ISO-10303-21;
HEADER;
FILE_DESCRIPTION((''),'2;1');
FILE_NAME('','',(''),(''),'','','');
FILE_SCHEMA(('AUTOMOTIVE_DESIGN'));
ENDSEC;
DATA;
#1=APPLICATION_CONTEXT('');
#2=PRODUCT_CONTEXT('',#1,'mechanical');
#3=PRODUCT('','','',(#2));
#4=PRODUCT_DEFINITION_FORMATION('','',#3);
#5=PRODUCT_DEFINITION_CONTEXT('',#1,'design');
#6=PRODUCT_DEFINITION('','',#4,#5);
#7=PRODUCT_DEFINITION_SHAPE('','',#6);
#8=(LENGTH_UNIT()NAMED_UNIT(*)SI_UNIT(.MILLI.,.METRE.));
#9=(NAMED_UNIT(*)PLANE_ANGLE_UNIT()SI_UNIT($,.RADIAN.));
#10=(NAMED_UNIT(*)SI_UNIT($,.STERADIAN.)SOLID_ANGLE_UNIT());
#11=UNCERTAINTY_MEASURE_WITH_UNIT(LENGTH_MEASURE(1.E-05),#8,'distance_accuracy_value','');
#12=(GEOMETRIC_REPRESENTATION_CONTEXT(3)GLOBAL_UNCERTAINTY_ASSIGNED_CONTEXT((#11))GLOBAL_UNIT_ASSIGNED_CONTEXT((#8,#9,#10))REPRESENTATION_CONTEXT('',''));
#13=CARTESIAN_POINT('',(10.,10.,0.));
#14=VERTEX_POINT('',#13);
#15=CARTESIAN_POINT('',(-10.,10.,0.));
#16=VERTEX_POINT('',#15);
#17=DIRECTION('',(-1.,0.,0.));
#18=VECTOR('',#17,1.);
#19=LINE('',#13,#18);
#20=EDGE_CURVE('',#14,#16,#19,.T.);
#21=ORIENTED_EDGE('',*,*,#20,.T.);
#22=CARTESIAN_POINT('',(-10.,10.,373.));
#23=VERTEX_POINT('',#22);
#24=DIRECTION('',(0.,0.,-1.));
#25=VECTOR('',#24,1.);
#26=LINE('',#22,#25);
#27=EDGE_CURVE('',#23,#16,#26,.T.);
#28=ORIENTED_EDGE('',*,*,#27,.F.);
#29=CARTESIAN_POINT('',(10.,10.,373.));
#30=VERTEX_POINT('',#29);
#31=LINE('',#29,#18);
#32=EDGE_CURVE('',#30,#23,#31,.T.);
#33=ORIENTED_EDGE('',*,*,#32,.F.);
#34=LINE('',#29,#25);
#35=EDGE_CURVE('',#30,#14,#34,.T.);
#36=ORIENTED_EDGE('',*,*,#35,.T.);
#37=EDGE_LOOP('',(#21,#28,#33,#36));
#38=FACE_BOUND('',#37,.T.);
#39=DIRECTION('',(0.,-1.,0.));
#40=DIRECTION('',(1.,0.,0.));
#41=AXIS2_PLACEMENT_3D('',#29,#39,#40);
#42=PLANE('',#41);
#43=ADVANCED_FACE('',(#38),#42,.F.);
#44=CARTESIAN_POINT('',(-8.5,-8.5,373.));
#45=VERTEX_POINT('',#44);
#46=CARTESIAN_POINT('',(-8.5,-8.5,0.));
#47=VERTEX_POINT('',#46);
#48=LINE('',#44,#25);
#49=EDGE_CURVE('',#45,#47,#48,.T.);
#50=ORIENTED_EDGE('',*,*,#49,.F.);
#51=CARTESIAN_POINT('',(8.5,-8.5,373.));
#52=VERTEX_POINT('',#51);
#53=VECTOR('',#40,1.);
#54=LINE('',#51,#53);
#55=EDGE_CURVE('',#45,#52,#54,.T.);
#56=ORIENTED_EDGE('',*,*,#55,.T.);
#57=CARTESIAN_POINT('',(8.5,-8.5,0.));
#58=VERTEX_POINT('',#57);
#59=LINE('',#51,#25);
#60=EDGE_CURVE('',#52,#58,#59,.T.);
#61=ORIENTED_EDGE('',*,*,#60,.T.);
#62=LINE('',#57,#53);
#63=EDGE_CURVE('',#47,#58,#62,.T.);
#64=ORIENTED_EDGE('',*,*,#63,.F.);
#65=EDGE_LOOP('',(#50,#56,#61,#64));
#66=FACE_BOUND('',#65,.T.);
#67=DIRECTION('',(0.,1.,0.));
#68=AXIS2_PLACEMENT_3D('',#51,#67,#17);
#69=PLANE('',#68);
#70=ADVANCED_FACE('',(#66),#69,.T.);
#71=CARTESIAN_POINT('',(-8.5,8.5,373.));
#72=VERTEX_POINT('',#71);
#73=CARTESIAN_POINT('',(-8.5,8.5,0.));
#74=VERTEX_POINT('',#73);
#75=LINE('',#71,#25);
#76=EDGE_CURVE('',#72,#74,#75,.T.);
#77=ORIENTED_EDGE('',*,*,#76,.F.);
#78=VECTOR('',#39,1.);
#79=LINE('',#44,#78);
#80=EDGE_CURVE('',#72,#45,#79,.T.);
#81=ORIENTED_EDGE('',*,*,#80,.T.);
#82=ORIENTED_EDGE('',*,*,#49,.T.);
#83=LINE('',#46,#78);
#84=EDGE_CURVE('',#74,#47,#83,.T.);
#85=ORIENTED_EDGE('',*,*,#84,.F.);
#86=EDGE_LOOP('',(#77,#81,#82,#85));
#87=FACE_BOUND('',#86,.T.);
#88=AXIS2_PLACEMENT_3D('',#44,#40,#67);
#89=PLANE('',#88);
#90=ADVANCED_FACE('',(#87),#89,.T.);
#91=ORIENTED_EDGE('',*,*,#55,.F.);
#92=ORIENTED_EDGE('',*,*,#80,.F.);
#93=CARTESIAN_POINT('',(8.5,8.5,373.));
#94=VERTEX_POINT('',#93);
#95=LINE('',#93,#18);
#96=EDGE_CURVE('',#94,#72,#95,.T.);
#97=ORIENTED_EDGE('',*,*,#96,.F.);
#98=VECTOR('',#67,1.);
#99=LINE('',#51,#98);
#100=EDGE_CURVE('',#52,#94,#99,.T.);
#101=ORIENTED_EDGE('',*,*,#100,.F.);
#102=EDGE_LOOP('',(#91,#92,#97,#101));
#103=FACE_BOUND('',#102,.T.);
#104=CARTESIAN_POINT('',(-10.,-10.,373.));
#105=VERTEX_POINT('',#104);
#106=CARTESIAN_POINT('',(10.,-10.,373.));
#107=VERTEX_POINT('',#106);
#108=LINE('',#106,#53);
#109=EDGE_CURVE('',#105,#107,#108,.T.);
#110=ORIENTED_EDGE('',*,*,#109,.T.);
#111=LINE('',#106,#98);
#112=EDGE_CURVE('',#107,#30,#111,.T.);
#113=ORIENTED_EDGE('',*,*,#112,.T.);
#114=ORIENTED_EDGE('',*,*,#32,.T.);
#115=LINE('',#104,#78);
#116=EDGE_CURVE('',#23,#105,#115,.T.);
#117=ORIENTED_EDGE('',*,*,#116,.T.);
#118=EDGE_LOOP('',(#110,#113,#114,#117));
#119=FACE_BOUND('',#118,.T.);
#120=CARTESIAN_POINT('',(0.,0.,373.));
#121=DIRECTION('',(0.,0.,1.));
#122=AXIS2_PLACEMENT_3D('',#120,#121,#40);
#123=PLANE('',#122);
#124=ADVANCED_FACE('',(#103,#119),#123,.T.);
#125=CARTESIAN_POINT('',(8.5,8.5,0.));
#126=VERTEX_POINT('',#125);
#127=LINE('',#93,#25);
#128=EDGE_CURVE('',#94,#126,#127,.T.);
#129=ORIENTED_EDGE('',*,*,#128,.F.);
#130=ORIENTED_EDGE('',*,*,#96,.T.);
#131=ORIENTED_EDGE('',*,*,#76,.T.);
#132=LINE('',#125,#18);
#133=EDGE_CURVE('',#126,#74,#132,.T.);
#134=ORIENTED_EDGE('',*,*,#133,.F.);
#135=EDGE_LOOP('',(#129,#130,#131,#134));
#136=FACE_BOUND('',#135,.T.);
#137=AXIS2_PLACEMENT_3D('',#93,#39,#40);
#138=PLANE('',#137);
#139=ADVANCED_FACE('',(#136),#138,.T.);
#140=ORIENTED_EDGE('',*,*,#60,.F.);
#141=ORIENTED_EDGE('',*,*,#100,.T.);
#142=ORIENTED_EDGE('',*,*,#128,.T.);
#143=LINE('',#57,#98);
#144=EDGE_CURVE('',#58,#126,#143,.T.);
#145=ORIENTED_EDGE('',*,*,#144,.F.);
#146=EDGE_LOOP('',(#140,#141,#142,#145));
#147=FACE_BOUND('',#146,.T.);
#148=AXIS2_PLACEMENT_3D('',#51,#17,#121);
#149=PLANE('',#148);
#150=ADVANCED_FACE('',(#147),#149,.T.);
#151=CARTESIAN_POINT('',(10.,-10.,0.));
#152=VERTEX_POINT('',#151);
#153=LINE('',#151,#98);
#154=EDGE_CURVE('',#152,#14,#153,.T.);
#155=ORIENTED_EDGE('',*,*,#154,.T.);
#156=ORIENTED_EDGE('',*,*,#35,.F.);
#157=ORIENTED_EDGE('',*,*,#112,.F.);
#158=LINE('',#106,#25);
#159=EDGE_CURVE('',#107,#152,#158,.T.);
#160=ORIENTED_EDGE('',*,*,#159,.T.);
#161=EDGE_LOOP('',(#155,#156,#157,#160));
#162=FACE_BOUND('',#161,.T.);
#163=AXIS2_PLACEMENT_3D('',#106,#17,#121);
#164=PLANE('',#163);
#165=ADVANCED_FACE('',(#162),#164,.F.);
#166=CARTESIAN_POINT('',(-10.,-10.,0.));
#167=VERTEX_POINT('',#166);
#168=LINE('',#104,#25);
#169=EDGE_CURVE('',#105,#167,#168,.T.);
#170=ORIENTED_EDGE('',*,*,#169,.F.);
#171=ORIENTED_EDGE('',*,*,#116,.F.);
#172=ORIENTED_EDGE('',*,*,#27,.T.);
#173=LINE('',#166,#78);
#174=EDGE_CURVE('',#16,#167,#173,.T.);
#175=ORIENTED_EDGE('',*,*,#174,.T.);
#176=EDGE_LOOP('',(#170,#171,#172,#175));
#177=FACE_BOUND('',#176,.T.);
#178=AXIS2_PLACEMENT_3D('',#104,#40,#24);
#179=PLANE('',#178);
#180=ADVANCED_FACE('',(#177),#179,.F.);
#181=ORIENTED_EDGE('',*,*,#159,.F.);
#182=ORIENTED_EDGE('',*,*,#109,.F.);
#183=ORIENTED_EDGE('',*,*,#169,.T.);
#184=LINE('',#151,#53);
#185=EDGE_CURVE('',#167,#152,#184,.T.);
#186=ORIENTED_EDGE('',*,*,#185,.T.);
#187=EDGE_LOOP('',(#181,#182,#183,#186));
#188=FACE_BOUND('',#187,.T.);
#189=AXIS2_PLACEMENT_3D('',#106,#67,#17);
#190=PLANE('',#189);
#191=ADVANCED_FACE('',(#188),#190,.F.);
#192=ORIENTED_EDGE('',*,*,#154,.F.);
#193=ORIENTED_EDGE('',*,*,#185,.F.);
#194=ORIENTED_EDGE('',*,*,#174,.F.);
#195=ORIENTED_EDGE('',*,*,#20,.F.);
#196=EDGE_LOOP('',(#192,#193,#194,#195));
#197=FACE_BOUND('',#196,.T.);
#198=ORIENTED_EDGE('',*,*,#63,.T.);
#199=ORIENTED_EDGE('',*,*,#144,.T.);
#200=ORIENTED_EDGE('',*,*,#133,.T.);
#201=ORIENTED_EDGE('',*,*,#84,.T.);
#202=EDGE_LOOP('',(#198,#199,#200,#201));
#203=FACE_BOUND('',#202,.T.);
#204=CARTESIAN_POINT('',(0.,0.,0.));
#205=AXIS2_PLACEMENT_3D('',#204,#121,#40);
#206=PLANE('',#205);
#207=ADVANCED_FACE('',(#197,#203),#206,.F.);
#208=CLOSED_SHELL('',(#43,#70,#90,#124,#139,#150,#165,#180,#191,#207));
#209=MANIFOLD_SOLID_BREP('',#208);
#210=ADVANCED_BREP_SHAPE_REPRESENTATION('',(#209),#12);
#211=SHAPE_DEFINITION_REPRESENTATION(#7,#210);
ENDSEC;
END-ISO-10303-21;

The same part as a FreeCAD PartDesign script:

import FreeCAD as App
import Part
import Sketcher

doc = App.newDocument("Part")
params = doc.addObject("Spreadsheet::Sheet", "Params")
for row, (alias, value) in enumerate([
    ("sketch1_width", "20 mm"),
    ("sketch1_width2", "17 mm"),
    ("pad1_length", "373 mm"),
], start=1):
    params.set(f"A{row}", alias)
    params.set(f"B{row}", "=" + value)
    params.setAlias(f"B{row}", alias)

body = doc.addObject("PartDesign::Body", "Body")

# Sketch on XY plane
sketch1 = body.newObject("Sketcher::SketchObject", "Sketch")
sketch1.AttachmentSupport = (doc.getObject("XY_Plane"), [""])
sketch1.MapMode = "FlatFace"
sketch1.addGeometry(Part.LineSegment(App.Vector(-10, 10, 0), App.Vector(-10, -10, 0)), False)
sketch1.addGeometry(Part.LineSegment(App.Vector(-10, -10, 0), App.Vector(10, -10, 0)), False)
sketch1.addGeometry(Part.LineSegment(App.Vector(10, -10, 0), App.Vector(10, 10, 0)), False)
sketch1.addGeometry(Part.LineSegment(App.Vector(10, 10, 0), App.Vector(-10, 10, 0)), False)
sketch1.addGeometry(Part.LineSegment(App.Vector(8, -8, 0), App.Vector(-8, -8, 0)), False)
sketch1.addGeometry(Part.LineSegment(App.Vector(-8, -8, 0), App.Vector(-8, 8, 0)), False)
sketch1.addGeometry(Part.LineSegment(App.Vector(-8, 8, 0), App.Vector(8, 8, 0)), False)
sketch1.addGeometry(Part.LineSegment(App.Vector(8, 8, 0), App.Vector(8, -8, 0)), False)
sketch1.addConstraint(Sketcher.Constraint("Coincident", 0, 2, 1, 1))
sketch1.addConstraint(Sketcher.Constraint("Coincident", 1, 2, 2, 1))
sketch1.addConstraint(Sketcher.Constraint("Coincident", 2, 2, 3, 1))
sketch1.addConstraint(Sketcher.Constraint("Coincident", 3, 2, 0, 1))
sketch1.addConstraint(Sketcher.Constraint("Coincident", 4, 2, 5, 1))
sketch1.addConstraint(Sketcher.Constraint("Coincident", 5, 2, 6, 1))
sketch1.addConstraint(Sketcher.Constraint("Coincident", 6, 2, 7, 1))
sketch1.addConstraint(Sketcher.Constraint("Coincident", 7, 2, 4, 1))
sketch1.addConstraint(Sketcher.Constraint("Vertical", 0))
sketch1.addConstraint(Sketcher.Constraint("Horizontal", 1))
sketch1.addConstraint(Sketcher.Constraint("Vertical", 2))
sketch1.addConstraint(Sketcher.Constraint("Horizontal", 3))
sketch1.addConstraint(Sketcher.Constraint("Horizontal", 4))
sketch1.addConstraint(Sketcher.Constraint("Vertical", 5))
sketch1.addConstraint(Sketcher.Constraint("Horizontal", 6))
sketch1.addConstraint(Sketcher.Constraint("Vertical", 7))
sketch1.addConstraint(Sketcher.Constraint("Symmetric", 0, 2, 2, 2, -1, 1))
sketch1.addConstraint(Sketcher.Constraint("Symmetric", 4, 2, 6, 2, -1, 1))
sketch1.addConstraint(Sketcher.Constraint("Equal", 3, 0))
sketch1.addConstraint(Sketcher.Constraint("Equal", 6, 5))
sketch1.addConstraint(Sketcher.Constraint("DistanceX", 1, 1, 1, 2, 20.0))
sketch1.addConstraint(Sketcher.Constraint("DistanceX", 4, 2, 4, 1, 17.0))
sketch1.setExpression("Constraints[20]", "Params.sketch1_width")
sketch1.setExpression("Constraints[21]", "Params.sketch1_width2")
pad1 = body.newObject("PartDesign::Pad", "Pad")
pad1.Profile = sketch1
pad1.setExpression("Length", "Params.pad1_length")

doc.recompute()
